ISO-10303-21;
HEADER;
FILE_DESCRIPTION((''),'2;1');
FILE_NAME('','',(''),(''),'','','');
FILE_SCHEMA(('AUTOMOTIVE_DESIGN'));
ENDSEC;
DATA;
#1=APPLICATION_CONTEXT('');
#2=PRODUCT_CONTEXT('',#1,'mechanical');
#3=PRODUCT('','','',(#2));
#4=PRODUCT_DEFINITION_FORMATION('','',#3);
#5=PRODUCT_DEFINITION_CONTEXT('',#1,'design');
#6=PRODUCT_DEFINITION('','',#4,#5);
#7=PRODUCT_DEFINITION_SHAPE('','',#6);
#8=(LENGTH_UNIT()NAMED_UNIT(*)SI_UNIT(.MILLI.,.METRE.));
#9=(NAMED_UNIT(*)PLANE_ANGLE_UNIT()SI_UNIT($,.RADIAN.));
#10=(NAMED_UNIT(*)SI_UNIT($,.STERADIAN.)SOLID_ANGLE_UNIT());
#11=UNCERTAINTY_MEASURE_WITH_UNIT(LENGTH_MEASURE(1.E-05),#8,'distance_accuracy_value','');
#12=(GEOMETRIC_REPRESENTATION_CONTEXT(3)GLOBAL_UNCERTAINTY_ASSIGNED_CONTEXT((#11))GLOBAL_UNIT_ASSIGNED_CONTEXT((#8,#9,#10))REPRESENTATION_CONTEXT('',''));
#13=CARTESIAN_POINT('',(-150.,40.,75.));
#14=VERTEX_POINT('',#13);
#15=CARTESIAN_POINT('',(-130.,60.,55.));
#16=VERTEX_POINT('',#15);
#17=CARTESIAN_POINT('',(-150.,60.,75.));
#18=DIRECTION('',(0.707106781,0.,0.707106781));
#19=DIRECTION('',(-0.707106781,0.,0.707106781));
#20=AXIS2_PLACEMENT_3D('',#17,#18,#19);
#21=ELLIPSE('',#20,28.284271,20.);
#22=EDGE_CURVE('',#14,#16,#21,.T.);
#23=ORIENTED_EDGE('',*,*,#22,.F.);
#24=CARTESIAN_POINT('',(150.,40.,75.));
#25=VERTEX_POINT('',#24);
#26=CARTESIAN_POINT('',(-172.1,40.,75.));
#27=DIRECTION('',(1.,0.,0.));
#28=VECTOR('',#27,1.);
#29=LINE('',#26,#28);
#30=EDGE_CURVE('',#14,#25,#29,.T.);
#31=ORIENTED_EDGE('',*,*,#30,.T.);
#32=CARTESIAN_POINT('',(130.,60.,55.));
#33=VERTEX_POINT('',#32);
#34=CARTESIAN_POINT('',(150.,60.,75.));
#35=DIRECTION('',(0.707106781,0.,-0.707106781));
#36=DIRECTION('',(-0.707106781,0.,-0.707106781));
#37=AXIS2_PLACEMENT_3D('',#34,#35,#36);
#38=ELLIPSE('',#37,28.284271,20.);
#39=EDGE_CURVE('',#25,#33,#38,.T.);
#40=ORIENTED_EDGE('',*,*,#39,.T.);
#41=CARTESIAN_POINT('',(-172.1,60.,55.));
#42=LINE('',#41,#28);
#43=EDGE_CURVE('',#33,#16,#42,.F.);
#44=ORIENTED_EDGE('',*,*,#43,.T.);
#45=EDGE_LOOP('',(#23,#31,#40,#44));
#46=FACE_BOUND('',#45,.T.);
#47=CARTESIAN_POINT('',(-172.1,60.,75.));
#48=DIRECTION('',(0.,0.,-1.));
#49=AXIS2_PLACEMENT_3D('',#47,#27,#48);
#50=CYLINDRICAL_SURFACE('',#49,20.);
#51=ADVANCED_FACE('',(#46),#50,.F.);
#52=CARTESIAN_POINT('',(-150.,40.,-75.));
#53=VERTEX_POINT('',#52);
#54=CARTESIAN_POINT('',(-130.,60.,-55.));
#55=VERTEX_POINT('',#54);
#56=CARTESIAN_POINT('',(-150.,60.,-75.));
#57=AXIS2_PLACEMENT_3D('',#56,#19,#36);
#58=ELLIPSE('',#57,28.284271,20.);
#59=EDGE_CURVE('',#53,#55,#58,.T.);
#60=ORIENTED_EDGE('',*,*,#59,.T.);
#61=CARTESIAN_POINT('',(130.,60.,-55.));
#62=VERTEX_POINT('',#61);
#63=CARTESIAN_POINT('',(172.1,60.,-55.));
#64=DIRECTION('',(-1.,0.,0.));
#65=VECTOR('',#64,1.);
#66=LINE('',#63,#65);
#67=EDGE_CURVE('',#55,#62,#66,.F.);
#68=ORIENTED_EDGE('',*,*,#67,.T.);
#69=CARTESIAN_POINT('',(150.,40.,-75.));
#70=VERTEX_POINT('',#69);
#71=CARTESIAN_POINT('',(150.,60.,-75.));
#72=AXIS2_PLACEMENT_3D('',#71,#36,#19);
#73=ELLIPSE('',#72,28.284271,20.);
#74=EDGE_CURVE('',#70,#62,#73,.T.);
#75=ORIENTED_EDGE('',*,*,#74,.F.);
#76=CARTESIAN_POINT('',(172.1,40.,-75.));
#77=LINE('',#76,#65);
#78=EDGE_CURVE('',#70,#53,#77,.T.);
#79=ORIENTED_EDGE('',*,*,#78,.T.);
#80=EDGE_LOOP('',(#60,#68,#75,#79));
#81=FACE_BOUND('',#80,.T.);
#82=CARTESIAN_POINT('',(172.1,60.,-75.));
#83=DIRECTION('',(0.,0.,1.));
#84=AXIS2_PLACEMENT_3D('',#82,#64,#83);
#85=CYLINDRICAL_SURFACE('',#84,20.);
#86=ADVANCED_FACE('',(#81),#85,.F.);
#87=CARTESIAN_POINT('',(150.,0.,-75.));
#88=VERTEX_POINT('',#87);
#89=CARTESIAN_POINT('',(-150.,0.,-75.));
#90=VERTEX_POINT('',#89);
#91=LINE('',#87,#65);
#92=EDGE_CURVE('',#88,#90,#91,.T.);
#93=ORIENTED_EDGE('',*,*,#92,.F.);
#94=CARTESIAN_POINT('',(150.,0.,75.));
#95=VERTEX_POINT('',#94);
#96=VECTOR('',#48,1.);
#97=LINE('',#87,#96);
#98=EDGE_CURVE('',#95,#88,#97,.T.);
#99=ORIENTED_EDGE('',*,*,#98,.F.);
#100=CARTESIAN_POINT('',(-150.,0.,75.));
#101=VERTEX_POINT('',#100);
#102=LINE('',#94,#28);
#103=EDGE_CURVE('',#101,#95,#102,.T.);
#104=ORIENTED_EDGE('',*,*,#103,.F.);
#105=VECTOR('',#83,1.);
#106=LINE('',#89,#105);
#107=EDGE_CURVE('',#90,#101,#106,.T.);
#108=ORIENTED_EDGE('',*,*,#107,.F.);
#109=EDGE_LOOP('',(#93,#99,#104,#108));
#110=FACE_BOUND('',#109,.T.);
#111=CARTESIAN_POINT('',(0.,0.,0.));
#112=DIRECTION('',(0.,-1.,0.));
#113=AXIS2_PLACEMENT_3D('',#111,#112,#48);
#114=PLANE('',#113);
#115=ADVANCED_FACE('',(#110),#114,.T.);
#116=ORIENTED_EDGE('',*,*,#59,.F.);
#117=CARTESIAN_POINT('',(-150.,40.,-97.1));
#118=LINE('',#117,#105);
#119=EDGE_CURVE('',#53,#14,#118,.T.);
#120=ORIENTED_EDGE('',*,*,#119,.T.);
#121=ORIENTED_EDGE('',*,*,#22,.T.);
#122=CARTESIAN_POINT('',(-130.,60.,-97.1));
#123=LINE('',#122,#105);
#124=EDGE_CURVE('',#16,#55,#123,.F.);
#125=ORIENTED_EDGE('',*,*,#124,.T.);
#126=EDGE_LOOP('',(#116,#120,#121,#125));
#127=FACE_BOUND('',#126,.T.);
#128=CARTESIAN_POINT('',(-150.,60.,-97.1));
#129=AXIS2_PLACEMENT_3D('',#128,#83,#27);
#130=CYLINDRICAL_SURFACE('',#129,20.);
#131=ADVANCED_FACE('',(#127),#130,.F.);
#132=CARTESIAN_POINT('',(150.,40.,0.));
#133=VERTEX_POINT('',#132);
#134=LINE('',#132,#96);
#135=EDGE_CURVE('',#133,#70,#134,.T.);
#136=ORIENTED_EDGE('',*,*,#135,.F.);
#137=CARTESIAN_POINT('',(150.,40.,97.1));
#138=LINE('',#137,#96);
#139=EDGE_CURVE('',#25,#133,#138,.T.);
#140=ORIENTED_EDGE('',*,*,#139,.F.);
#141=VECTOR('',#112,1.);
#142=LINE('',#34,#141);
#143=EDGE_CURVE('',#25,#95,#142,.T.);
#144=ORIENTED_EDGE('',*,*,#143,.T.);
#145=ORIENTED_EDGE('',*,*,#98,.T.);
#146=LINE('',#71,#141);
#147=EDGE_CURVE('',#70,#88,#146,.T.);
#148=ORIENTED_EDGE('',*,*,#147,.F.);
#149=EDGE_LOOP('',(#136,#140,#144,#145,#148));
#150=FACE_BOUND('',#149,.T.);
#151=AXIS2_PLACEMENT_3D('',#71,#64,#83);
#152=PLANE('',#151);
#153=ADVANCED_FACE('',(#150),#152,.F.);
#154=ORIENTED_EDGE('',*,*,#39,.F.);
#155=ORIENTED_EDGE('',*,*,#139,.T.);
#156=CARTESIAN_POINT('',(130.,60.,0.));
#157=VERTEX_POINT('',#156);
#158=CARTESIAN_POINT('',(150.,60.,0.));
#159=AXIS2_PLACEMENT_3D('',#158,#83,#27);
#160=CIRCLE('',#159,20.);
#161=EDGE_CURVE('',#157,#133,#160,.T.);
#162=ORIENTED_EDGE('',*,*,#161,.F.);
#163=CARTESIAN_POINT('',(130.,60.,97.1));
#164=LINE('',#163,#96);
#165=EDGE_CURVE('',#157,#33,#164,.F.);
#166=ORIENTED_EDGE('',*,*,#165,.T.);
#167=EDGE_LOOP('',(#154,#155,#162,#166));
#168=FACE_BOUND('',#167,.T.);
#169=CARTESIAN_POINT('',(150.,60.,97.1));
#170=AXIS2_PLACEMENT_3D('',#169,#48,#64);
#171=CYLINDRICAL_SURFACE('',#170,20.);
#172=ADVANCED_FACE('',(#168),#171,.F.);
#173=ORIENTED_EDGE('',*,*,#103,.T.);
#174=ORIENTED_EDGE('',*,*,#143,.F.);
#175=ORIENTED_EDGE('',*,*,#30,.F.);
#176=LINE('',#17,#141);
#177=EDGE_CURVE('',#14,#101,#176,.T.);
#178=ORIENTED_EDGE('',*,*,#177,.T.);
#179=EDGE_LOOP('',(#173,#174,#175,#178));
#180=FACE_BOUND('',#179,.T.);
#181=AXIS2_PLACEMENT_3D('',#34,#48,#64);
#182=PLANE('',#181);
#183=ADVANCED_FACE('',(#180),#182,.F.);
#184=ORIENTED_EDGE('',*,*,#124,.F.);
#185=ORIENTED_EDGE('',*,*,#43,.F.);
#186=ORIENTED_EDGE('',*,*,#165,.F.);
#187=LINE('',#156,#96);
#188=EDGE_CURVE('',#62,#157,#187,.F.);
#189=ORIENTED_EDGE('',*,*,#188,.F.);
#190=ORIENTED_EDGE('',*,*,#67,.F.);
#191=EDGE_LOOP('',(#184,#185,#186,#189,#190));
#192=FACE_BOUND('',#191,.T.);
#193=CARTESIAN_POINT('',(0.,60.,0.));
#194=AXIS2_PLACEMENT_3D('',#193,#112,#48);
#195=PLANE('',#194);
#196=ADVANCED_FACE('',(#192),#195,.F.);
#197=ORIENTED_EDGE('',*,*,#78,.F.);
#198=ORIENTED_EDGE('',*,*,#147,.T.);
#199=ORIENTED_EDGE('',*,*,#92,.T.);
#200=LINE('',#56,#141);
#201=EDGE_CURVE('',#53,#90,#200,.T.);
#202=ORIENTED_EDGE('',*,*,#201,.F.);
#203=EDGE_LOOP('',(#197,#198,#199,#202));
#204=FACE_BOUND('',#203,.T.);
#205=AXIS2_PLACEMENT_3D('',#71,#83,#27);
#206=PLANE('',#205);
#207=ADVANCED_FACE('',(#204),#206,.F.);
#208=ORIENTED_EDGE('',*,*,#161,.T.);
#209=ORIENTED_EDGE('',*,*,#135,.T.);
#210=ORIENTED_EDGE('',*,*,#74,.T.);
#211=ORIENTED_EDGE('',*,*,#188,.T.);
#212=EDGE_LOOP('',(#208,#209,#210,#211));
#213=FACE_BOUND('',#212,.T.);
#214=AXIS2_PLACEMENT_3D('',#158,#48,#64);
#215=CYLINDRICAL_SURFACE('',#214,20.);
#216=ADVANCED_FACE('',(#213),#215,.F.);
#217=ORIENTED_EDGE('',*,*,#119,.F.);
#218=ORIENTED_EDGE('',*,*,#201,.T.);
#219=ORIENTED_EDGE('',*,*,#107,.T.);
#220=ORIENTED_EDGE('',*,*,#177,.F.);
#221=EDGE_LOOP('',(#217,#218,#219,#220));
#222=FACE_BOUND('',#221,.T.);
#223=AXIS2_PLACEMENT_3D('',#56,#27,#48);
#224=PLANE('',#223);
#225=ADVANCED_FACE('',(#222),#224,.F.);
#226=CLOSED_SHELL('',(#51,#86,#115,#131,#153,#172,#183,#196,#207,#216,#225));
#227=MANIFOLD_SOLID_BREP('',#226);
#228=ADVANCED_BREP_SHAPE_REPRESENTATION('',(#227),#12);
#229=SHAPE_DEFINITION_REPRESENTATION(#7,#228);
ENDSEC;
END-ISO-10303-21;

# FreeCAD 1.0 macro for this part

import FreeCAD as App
import Part
import Sketcher
Q = App.Units.Quantity

doc = App.newDocument("Part")
params = doc.addObject("Spreadsheet::Sheet", "Params")
for row, (alias, value) in enumerate([
    ("sketch1_width", "300 mm"),
    ("sketch1_height", "150 mm"),
    ("pad1_length", "60 mm"),
    ("sketch2_diameter", "40 mm"),
    ("sketch3_width", "300 mm"),
    ("sketch3_height", "150 mm"),
], start=1):
    params.set(f"A{row}", alias)
    params.set(f"B{row}", "=" + value)
    params.setAlias(f"B{row}", alias)

body = doc.addObject("PartDesign::Body", "Body")

sketch1 = body.newObject("Sketcher::SketchObject", "Sketch")
sketch1.AttachmentSupport = (doc.getObject("XZ_Plane"), [""])
sketch1.MapMode = "FlatFace"
sketch1.addGeometry(Part.LineSegment(App.Vector(-150, -75, 0), App.Vector(-150, 75, 0)), False)
sketch1.addGeometry(Part.LineSegment(App.Vector(-150, 75, 0), App.Vector(150, 75, 0)), False)
sketch1.addGeometry(Part.LineSegment(App.Vector(150, 75, 0), App.Vector(150, -75, 0)), False)
sketch1.addGeometry(Part.LineSegment(App.Vector(150, -75, 0), App.Vector(-150, -75, 0)), False)
sketch1.addConstraint(Sketcher.Constraint("Coincident", 0, 2, 1, 1))
sketch1.addConstraint(Sketcher.Constraint("Coincident", 1, 2, 2, 1))
sketch1.addConstraint(Sketcher.Constraint("Coincident", 2, 2, 3, 1))
sketch1.addConstraint(Sketcher.Constraint("Coincident", 3, 2, 0, 1))
sketch1.addConstraint(Sketcher.Constraint("Vertical", 0))
sketch1.addConstraint(Sketcher.Constraint("Horizontal", 1))
sketch1.addConstraint(Sketcher.Constraint("Vertical", 2))
sketch1.addConstraint(Sketcher.Constraint("Horizontal", 3))
sketch1.addConstraint(Sketcher.Constraint("Symmetric", 0, 2, 2, 2, -1, 1))
sketch1.addConstraint(Sketcher.Constraint("DistanceX", 1, 1, 1, 2, Q("300 mm")))
sketch1.addConstraint(Sketcher.Constraint("DistanceY", 0, 1, 0, 2, Q("150 mm")))
sketch1.setExpression("Constraints[9]", "Params.sketch1_width")
sketch1.setExpression("Constraints[10]", "Params.sketch1_height")
pad1 = body.newObject("PartDesign::Pad", "Pad")
pad1.Profile = sketch1
pad1.setExpression("Length", "Params.pad1_length")
pad1.Reversed = True

sketch2 = body.newObject("Sketcher::SketchObject", "Sketch001")
sketch2.AttachmentSupport = (doc.getObject("XY_Plane"), [""])
sketch2.MapMode = "FlatFace"
sketch2.addGeometry(Part.Circle(App.Vector(150, 60, 0), App.Vector(0, 0, 1), 20), False)
sketch2.addConstraint(Sketcher.Constraint("Diameter", 0, Q("40 mm")))
sketch2.addConstraint(Sketcher.Constraint("DistanceX", -1, 1, 0, 3, Q("150 mm")))
sketch2.addConstraint(Sketcher.Constraint("DistanceY", -1, 1, 0, 3, Q("60 mm")))
sketch2.setExpression("Constraints[0]", "Params.sketch2_diameter")

sketch3 = body.newObject("Sketcher::SketchObject", "Sketch002")
sketch3.AttachmentSupport = (doc.getObject("XZ_Plane"), [""])
sketch3.MapMode = "FlatFace"
sketch3.AttachmentOffset = App.Placement(App.Vector(0, 0, -60), App.Rotation())
sketch3.addGeometry(Part.LineSegment(App.Vector(-150, -75, 0), App.Vector(-150, 75, 0)), False)
sketch3.addGeometry(Part.LineSegment(App.Vector(-150, 75, 0), App.Vector(150, 75, 0)), False)
sketch3.addGeometry(Part.LineSegment(App.Vector(150, 75, 0), App.Vector(150, -75, 0)), False)
sketch3.addGeometry(Part.LineSegment(App.Vector(150, -75, 0), App.Vector(-150, -75, 0)), False)
sketch3.addConstraint(Sketcher.Constraint("Coincident", 0, 2, 1, 1))
sketch3.addConstraint(Sketcher.Constraint("Coincident", 1, 2, 2, 1))
sketch3.addConstraint(Sketcher.Constraint("Coincident", 2, 2, 3, 1))
sketch3.addConstraint(Sketcher.Constraint("Coincident", 3, 2, 0, 1))
sketch3.addConstraint(Sketcher.Constraint("Vertical", 0))
sketch3.addConstraint(Sketcher.Constraint("Horizontal", 1))
sketch3.addConstraint(Sketcher.Constraint("Vertical", 2))
sketch3.addConstraint(Sketcher.Constraint("Horizontal", 3))
sketch3.addConstraint(Sketcher.Constraint("Symmetric", 0, 2, 2, 2, -1, 1))
sketch3.addConstraint(Sketcher.Constraint("DistanceX", 1, 1, 1, 2, Q("300 mm")))
sketch3.addConstraint(Sketcher.Constraint("DistanceY", 0, 1, 0, 2, Q("150 mm")))
sketch3.setExpression("Constraints[9]", "Params.sketch3_width")
sketch3.setExpression("Constraints[10]", "Params.sketch3_height")
doc.recompute()

subtractivepipe = body.newObject("PartDesign::SubtractivePipe", "SubtractivePipe")
subtractivepipe.Profile = sketch2
subtractivepipe.Spine = (sketch3, ["Edge1", "Edge2", "Edge3", "Edge4"])
subtractivepipe.Transition = "Right corner"

doc.recompute()
